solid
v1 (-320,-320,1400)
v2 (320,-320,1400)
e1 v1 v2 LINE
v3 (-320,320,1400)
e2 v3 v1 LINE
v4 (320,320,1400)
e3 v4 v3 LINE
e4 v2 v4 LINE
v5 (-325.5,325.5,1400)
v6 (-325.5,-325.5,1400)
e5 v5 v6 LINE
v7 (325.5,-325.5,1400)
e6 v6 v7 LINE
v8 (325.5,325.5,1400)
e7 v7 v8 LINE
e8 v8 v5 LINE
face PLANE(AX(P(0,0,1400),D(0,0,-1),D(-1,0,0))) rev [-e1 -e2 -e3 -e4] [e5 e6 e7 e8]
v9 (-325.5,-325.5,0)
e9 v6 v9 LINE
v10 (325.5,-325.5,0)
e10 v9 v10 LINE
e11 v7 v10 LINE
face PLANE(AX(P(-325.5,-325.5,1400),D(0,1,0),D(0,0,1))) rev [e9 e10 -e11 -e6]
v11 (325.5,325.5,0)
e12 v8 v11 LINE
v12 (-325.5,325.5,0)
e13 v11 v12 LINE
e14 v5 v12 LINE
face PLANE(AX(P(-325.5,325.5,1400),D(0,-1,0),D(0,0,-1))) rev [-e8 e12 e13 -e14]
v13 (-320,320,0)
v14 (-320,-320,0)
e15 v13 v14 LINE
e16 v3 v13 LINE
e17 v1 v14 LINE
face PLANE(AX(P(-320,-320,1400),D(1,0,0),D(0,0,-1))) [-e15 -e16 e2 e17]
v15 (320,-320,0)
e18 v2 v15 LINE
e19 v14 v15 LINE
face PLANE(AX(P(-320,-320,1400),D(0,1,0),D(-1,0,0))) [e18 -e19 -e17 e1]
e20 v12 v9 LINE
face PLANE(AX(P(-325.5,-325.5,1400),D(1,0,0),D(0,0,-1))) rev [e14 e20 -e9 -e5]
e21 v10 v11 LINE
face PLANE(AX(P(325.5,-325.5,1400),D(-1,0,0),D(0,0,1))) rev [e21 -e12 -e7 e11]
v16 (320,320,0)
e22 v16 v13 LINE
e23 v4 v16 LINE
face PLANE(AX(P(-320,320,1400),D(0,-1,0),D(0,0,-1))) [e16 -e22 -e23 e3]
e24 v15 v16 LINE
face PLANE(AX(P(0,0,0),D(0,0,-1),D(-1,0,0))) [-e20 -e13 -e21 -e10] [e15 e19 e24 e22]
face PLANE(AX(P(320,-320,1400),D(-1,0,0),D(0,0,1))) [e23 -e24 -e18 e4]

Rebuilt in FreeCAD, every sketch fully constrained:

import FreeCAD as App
import Part
import Sketcher
from FreeCAD import Vector

doc = App.newDocument("Part")
body = doc.addObject("PartDesign::Body", "Body")

sketch1 = doc.addObject("Sketcher::SketchObject", "Sketch")
body.addObject(sketch1)
sketch1.AttachmentSupport = (doc.XY_Plane, [""])
sketch1.MapMode = "FlatFace"
sketch1.addGeometry([
    Part.LineSegment(Vector(-326, 326, 0), Vector(-326, -326, 0)),
    Part.LineSegment(Vector(-326, -326, 0), Vector(326, -326, 0)),
    Part.LineSegment(Vector(326, -326, 0), Vector(326, 326, 0)),
    Part.LineSegment(Vector(326, 326, 0), Vector(-326, 326, 0)),
    Part.LineSegment(Vector(320, -320, 0), Vector(-320, -320, 0)),
    Part.LineSegment(Vector(-320, -320, 0), Vector(-320, 320, 0)),
    Part.LineSegment(Vector(-320, 320, 0), Vector(320, 320, 0)),
    Part.LineSegment(Vector(320, 320, 0), Vector(320, -320, 0)),
], False)
sketch1.addConstraint([
    Sketcher.Constraint("Coincident", 0, 2, 1, 1),
    Sketcher.Constraint("Coincident", 1, 2, 2, 1),
    Sketcher.Constraint("Coincident", 2, 2, 3, 1),
    Sketcher.Constraint("Coincident", 3, 2, 0, 1),
    Sketcher.Constraint("Coincident", 4, 2, 5, 1),
    Sketcher.Constraint("Coincident", 5, 2, 6, 1),
    Sketcher.Constraint("Coincident", 6, 2, 7, 1),
    Sketcher.Constraint("Coincident", 7, 2, 4, 1),
    Sketcher.Constraint("Vertical", 0),
    Sketcher.Constraint("Horizontal", 1),
    Sketcher.Constraint("Vertical", 2),
    Sketcher.Constraint("Horizontal", 3),
    Sketcher.Constraint("Horizontal", 4),
    Sketcher.Constraint("Vertical", 5),
    Sketcher.Constraint("Horizontal", 6),
    Sketcher.Constraint("Vertical", 7),
    Sketcher.Constraint("Symmetric", 0, 2, 2, 2, -1, 1),
    Sketcher.Constraint("Symmetric", 4, 2, 6, 2, -1, 1),
    Sketcher.Constraint("Equal", 3, 0),
    Sketcher.Constraint("Equal", 6, 5),
    Sketcher.Constraint("DistanceX", 1, 1, 1, 2, 651.0),
    Sketcher.Constraint("DistanceX", 4, 2, 4, 1, 640.0),
])
pad1 = doc.addObject("PartDesign::Pad", "Pad")
body.addObject(pad1)
pad1.Profile = sketch1
pad1.Length = 1400

doc.recompute()
